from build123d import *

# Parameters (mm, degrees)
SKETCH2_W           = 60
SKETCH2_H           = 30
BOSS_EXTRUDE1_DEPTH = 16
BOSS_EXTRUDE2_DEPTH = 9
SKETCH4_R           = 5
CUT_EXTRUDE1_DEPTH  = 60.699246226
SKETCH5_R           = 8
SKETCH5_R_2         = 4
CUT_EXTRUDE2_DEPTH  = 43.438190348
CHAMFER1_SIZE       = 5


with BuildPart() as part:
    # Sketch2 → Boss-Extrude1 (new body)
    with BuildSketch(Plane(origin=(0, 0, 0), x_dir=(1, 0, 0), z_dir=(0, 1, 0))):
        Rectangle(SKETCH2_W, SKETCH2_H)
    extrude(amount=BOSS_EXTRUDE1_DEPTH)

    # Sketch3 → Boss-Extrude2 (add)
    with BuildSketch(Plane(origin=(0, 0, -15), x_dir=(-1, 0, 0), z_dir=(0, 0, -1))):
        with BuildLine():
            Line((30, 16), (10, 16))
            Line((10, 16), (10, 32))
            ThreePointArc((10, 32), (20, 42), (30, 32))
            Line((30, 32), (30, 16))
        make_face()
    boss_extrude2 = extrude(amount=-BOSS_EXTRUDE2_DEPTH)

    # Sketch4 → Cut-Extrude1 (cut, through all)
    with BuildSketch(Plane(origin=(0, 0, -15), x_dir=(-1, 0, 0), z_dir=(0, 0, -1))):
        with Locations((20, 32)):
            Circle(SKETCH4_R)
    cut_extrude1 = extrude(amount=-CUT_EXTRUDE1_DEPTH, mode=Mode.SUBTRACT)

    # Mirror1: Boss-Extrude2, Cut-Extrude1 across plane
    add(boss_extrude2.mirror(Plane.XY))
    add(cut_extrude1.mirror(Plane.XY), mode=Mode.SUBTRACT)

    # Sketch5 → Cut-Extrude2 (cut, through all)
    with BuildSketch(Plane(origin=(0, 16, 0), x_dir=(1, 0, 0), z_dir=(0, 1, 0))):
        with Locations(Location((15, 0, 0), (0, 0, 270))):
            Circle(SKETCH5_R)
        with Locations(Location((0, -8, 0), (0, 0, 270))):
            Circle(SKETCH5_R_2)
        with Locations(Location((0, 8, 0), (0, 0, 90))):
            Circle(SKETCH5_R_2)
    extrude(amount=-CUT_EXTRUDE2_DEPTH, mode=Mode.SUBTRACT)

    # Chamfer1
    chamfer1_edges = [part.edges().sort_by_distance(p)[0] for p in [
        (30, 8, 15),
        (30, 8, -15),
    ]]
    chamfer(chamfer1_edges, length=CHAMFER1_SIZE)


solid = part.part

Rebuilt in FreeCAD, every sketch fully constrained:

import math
import FreeCAD as App
import Part
import Sketcher

V = App.Vector


def edges_at(feature, points):
    """Names of the edges that pass closest to the given points."""
    edges = feature.Shape.Edges
    near = lambda p: min(range(len(edges)), key=lambda i: edges[i].distToShape(Part.Vertex(*p))[0])
    return sorted({f"Edge{near(p) + 1}" for p in points})

doc = App.newDocument("Part")
body = doc.addObject("PartDesign::Body", "Body")

# Sketch on XZ plane
sketch1 = body.newObject("Sketcher::SketchObject", "Sketch")
sketch1.AttachmentSupport = (doc.getObject("XZ_Plane"), [""])
sketch1.MapMode = "FlatFace"
sketch1.addGeometry([
    Part.LineSegment(V(-30, -15, 0), V(-30, 15, 0)),
    Part.LineSegment(V(-30, 15, 0), V(30, 15, 0)),
    Part.LineSegment(V(30, 15, 0), V(30, -15, 0)),
    Part.LineSegment(V(30, -15, 0), V(-30, -15, 0)),
], False)
sketch1.addConstraint([
    Sketcher.Constraint("Coincident", 0, 2, 1, 1),
    Sketcher.Constraint("Coincident", 1, 2, 2, 1),
    Sketcher.Constraint("Coincident", 2, 2, 3, 1),
    Sketcher.Constraint("Coincident", 3, 2, 0, 1),
    Sketcher.Constraint("Vertical", 0),
    Sketcher.Constraint("Horizontal", 1),
    Sketcher.Constraint("Vertical", 2),
    Sketcher.Constraint("Horizontal", 3),
    Sketcher.Constraint("Symmetric", 0, 2, 2, 2, -1, 1),
    Sketcher.Constraint("DistanceX", 1, 1, 1, 2, 60.0),
    Sketcher.Constraint("DistanceY", 0, 1, 0, 2, 30.0),
])
pad1 = body.newObject("PartDesign::Pad", "Pad")
pad1.Profile = sketch1
pad1.Length = 16
pad1.Reversed = True

# Sketch on XY plane
sketch2 = body.newObject("Sketcher::SketchObject", "Sketch001")
sketch2.AttachmentSupport = (doc.getObject("XY_Plane"), [""])
sketch2.MapMode = "FlatFace"
sketch2.AttachmentOffset = App.Placement(V(0, 0, -15), App.Rotation())
sketch2.addGeometry([
    Part.LineSegment(V(-10, 16, 0), V(-30, 16, 0)),
    Part.LineSegment(V(-30, 16, 0), V(-30, 32, 0)),
    Part.ArcOfCircle(Part.Circle(V(-20, 32, 0), V(0, 0, 1), 10), math.radians(0), math.radians(180)),
    Part.LineSegment(V(-10, 32, 0), V(-10, 16, 0)),
], False)
sketch2.addConstraint([
    Sketcher.Constraint("Coincident", 0, 2, 1, 1),
    Sketcher.Constraint("Tangent", 1, 2, 2, 2),
    Sketcher.Constraint("Tangent", 2, 1, 3, 1),
    Sketcher.Constraint("Coincident", 3, 2, 0, 1),
    Sketcher.Constraint("Horizontal", 0),
    Sketcher.Constraint("Vertical", 1),
    Sketcher.Constraint("Vertical", 3),
    Sketcher.Constraint("Radius", 2, 10.0),
    Sketcher.Constraint("DistanceY", 1, 1, 1, 2, 16.0),
    Sketcher.Constraint("DistanceX", 2, 3, -1, 1, 20.0),
    Sketcher.Constraint("DistanceY", -1, 1, 2, 3, 32.0),
])
pad2 = body.newObject("PartDesign::Pad", "Pad001")
pad2.Profile = sketch2
pad2.Length = 9

# Sketch on XY plane
sketch3 = body.newObject("Sketcher::SketchObject", "Sketch002")
sketch3.AttachmentSupport = (doc.getObject("XY_Plane"), [""])
sketch3.MapMode = "FlatFace"
sketch3.AttachmentOffset = App.Placement(V(0, 0, -15), App.Rotation())
sketch3.addGeometry(Part.Circle(V(-20, 32, 0), V(0, 0, 1), 5), False)
sketch3.addConstraint([
    Sketcher.Constraint("Diameter", 0, 10.0),
    Sketcher.Constraint("DistanceX", 0, 3, -1, 1, 20.0),
    Sketcher.Constraint("DistanceY", -1, 1, 0, 3, 32.0),
])
pocket1 = body.newObject("PartDesign::Pocket", "Pocket")
pocket1.Profile = sketch3
pocket1.Type = "ThroughAll"
pocket1.Reversed = True
doc.recompute()

mirrored = body.newObject("PartDesign::Mirrored", "Mirrored")
mirrored.Originals = [pad2, pocket1]
mirrored.MirrorPlane = (doc.getObject("XY_Plane"), [""])
body.Tip = mirrored

# Sketch on XZ plane
sketch4 = body.newObject("Sketcher::SketchObject", "Sketch003")
sketch4.AttachmentSupport = (doc.getObject("XZ_Plane"), [""])
sketch4.MapMode = "FlatFace"
sketch4.AttachmentOffset = App.Placement(V(0, 0, -16), App.Rotation())
sketch4.addGeometry([
    Part.Circle(V(15, 0, 0), V(0, 0, 1), 8),
    Part.Circle(V(0, 8, 0), V(0, 0, 1), 4),
    Part.Circle(V(0, -8, 0), V(0, 0, 1), 4),
], False)
sketch4.addConstraint([
    Sketcher.Constraint("Equal", 1, 2),
    Sketcher.Constraint("Symmetric", 1, 3, 2, 3, -1, 1),
    Sketcher.Constraint("PointOnObject", 0, 3, -1),
    Sketcher.Constraint("PointOnObject", 1, 3, -2),
    Sketcher.Constraint("Diameter", 0, 16.0),
    Sketcher.Constraint("Diameter", 1, 8.0),
    Sketcher.Constraint("DistanceX", -1, 1, 0, 3, 15.0),
    Sketcher.Constraint("DistanceY", -1, 1, 1, 3, 8.0),
])
pocket2 = body.newObject("PartDesign::Pocket", "Pocket001")
pocket2.Profile = sketch4
pocket2.Type = "ThroughAll"
pocket2.Reversed = True
doc.recompute()

chamfer = body.newObject("PartDesign::Chamfer", "Chamfer")
chamfer.Base = (pocket2, edges_at(pocket2, [(30, 8, 15), (30, 8, -15)]))
chamfer.Size = 5

doc.recompute()
